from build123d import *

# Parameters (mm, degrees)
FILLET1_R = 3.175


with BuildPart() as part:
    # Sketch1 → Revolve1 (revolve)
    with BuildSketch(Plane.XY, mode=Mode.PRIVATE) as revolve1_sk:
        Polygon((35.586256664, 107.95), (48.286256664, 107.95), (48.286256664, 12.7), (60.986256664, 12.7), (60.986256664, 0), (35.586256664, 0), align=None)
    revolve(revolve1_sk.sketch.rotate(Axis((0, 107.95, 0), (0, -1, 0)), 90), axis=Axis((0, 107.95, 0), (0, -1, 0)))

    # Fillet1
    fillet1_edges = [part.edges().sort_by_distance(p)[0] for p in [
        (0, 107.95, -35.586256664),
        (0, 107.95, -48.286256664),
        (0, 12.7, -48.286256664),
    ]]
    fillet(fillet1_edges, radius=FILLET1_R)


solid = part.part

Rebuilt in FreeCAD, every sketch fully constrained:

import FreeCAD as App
import Part
import Sketcher

V = App.Vector
Q = App.Units.Quantity


def edges_at(feature, points):
    """Names of the edges that pass closest to the given points."""
    edges = feature.Shape.Edges
    near = lambda p: min(range(len(edges)), key=lambda i: edges[i].distToShape(Part.Vertex(*p))[0])
    return sorted({f"Edge{near(p) + 1}" for p in points})

doc = App.newDocument("Part")
body = doc.addObject("PartDesign::Body", "Body")

# Sketch on XY plane
sketch1 = body.newObject("Sketcher::SketchObject", "Sketch")
sketch1.AttachmentSupport = (doc.getObject("XY_Plane"), [""])
sketch1.MapMode = "FlatFace"
sketch1.addGeometry(Part.LineSegment(V(48, 108, 0), V(36, 108, 0)), False)
sketch1.addGeometry(Part.LineSegment(V(36, 108, 0), V(36, 0, 0)), False)
sketch1.addGeometry(Part.LineSegment(V(36, 0, 0), V(61, 0, 0)), False)
sketch1.addGeometry(Part.LineSegment(V(61, 0, 0), V(61, 13, 0)), False)
sketch1.addGeometry(Part.LineSegment(V(61, 13, 0), V(48, 13, 0)), False)
sketch1.addGeometry(Part.LineSegment(V(48, 13, 0), V(48, 108, 0)), False)
sketch1.addConstraint(Sketcher.Constraint("Coincident", 0, 2, 1, 1))
sketch1.addConstraint(Sketcher.Constraint("Coincident", 1, 2, 2, 1))
sketch1.addConstraint(Sketcher.Constraint("Coincident", 2, 2, 3, 1))
sketch1.addConstraint(Sketcher.Constraint("Coincident", 3, 2, 4, 1))
sketch1.addConstraint(Sketcher.Constraint("Coincident", 4, 2, 5, 1))
sketch1.addConstraint(Sketcher.Constraint("Coincident", 5, 2, 0, 1))
sketch1.addConstraint(Sketcher.Constraint("Horizontal", 0))
sketch1.addConstraint(Sketcher.Constraint("Vertical", 1))
sketch1.addConstraint(Sketcher.Constraint("Horizontal", 2))
sketch1.addConstraint(Sketcher.Constraint("Vertical", 3))
sketch1.addConstraint(Sketcher.Constraint("Horizontal", 4))
sketch1.addConstraint(Sketcher.Constraint("Vertical", 5))
sketch1.addConstraint(Sketcher.Constraint("PointOnObject", 1, 2, -1))
sketch1.addConstraint(Sketcher.Constraint("Equal", 0, 4))
sketch1.addConstraint(Sketcher.Constraint("Equal", 4, 3))
sketch1.addConstraint(Sketcher.Constraint("DistanceX", 2, 1, 2, 2, Q("1 in")))
sketch1.addConstraint(Sketcher.Constraint("DistanceY", 1, 2, 1, 1, Q("4.25 in")))
sketch1.addConstraint(Sketcher.Constraint("DistanceX", -1, 1, 0, 2, Q("35.586257 mm")))
revolution = body.newObject("PartDesign::Revolution", "Revolution")
revolution.Profile = sketch1
revolution.ReferenceAxis = (sketch1, ["V_Axis"])
revolution.Angle = 360
doc.recompute()

fillet = body.newObject("PartDesign::Fillet", "Fillet")
fillet.Base = (revolution, edges_at(revolution, [(0, 107.95, -35.586), (0, 107.95, -48.286), (0, 12.7, -48.286)]))
fillet.Radius = Q("0.125 in")

doc.recompute()
